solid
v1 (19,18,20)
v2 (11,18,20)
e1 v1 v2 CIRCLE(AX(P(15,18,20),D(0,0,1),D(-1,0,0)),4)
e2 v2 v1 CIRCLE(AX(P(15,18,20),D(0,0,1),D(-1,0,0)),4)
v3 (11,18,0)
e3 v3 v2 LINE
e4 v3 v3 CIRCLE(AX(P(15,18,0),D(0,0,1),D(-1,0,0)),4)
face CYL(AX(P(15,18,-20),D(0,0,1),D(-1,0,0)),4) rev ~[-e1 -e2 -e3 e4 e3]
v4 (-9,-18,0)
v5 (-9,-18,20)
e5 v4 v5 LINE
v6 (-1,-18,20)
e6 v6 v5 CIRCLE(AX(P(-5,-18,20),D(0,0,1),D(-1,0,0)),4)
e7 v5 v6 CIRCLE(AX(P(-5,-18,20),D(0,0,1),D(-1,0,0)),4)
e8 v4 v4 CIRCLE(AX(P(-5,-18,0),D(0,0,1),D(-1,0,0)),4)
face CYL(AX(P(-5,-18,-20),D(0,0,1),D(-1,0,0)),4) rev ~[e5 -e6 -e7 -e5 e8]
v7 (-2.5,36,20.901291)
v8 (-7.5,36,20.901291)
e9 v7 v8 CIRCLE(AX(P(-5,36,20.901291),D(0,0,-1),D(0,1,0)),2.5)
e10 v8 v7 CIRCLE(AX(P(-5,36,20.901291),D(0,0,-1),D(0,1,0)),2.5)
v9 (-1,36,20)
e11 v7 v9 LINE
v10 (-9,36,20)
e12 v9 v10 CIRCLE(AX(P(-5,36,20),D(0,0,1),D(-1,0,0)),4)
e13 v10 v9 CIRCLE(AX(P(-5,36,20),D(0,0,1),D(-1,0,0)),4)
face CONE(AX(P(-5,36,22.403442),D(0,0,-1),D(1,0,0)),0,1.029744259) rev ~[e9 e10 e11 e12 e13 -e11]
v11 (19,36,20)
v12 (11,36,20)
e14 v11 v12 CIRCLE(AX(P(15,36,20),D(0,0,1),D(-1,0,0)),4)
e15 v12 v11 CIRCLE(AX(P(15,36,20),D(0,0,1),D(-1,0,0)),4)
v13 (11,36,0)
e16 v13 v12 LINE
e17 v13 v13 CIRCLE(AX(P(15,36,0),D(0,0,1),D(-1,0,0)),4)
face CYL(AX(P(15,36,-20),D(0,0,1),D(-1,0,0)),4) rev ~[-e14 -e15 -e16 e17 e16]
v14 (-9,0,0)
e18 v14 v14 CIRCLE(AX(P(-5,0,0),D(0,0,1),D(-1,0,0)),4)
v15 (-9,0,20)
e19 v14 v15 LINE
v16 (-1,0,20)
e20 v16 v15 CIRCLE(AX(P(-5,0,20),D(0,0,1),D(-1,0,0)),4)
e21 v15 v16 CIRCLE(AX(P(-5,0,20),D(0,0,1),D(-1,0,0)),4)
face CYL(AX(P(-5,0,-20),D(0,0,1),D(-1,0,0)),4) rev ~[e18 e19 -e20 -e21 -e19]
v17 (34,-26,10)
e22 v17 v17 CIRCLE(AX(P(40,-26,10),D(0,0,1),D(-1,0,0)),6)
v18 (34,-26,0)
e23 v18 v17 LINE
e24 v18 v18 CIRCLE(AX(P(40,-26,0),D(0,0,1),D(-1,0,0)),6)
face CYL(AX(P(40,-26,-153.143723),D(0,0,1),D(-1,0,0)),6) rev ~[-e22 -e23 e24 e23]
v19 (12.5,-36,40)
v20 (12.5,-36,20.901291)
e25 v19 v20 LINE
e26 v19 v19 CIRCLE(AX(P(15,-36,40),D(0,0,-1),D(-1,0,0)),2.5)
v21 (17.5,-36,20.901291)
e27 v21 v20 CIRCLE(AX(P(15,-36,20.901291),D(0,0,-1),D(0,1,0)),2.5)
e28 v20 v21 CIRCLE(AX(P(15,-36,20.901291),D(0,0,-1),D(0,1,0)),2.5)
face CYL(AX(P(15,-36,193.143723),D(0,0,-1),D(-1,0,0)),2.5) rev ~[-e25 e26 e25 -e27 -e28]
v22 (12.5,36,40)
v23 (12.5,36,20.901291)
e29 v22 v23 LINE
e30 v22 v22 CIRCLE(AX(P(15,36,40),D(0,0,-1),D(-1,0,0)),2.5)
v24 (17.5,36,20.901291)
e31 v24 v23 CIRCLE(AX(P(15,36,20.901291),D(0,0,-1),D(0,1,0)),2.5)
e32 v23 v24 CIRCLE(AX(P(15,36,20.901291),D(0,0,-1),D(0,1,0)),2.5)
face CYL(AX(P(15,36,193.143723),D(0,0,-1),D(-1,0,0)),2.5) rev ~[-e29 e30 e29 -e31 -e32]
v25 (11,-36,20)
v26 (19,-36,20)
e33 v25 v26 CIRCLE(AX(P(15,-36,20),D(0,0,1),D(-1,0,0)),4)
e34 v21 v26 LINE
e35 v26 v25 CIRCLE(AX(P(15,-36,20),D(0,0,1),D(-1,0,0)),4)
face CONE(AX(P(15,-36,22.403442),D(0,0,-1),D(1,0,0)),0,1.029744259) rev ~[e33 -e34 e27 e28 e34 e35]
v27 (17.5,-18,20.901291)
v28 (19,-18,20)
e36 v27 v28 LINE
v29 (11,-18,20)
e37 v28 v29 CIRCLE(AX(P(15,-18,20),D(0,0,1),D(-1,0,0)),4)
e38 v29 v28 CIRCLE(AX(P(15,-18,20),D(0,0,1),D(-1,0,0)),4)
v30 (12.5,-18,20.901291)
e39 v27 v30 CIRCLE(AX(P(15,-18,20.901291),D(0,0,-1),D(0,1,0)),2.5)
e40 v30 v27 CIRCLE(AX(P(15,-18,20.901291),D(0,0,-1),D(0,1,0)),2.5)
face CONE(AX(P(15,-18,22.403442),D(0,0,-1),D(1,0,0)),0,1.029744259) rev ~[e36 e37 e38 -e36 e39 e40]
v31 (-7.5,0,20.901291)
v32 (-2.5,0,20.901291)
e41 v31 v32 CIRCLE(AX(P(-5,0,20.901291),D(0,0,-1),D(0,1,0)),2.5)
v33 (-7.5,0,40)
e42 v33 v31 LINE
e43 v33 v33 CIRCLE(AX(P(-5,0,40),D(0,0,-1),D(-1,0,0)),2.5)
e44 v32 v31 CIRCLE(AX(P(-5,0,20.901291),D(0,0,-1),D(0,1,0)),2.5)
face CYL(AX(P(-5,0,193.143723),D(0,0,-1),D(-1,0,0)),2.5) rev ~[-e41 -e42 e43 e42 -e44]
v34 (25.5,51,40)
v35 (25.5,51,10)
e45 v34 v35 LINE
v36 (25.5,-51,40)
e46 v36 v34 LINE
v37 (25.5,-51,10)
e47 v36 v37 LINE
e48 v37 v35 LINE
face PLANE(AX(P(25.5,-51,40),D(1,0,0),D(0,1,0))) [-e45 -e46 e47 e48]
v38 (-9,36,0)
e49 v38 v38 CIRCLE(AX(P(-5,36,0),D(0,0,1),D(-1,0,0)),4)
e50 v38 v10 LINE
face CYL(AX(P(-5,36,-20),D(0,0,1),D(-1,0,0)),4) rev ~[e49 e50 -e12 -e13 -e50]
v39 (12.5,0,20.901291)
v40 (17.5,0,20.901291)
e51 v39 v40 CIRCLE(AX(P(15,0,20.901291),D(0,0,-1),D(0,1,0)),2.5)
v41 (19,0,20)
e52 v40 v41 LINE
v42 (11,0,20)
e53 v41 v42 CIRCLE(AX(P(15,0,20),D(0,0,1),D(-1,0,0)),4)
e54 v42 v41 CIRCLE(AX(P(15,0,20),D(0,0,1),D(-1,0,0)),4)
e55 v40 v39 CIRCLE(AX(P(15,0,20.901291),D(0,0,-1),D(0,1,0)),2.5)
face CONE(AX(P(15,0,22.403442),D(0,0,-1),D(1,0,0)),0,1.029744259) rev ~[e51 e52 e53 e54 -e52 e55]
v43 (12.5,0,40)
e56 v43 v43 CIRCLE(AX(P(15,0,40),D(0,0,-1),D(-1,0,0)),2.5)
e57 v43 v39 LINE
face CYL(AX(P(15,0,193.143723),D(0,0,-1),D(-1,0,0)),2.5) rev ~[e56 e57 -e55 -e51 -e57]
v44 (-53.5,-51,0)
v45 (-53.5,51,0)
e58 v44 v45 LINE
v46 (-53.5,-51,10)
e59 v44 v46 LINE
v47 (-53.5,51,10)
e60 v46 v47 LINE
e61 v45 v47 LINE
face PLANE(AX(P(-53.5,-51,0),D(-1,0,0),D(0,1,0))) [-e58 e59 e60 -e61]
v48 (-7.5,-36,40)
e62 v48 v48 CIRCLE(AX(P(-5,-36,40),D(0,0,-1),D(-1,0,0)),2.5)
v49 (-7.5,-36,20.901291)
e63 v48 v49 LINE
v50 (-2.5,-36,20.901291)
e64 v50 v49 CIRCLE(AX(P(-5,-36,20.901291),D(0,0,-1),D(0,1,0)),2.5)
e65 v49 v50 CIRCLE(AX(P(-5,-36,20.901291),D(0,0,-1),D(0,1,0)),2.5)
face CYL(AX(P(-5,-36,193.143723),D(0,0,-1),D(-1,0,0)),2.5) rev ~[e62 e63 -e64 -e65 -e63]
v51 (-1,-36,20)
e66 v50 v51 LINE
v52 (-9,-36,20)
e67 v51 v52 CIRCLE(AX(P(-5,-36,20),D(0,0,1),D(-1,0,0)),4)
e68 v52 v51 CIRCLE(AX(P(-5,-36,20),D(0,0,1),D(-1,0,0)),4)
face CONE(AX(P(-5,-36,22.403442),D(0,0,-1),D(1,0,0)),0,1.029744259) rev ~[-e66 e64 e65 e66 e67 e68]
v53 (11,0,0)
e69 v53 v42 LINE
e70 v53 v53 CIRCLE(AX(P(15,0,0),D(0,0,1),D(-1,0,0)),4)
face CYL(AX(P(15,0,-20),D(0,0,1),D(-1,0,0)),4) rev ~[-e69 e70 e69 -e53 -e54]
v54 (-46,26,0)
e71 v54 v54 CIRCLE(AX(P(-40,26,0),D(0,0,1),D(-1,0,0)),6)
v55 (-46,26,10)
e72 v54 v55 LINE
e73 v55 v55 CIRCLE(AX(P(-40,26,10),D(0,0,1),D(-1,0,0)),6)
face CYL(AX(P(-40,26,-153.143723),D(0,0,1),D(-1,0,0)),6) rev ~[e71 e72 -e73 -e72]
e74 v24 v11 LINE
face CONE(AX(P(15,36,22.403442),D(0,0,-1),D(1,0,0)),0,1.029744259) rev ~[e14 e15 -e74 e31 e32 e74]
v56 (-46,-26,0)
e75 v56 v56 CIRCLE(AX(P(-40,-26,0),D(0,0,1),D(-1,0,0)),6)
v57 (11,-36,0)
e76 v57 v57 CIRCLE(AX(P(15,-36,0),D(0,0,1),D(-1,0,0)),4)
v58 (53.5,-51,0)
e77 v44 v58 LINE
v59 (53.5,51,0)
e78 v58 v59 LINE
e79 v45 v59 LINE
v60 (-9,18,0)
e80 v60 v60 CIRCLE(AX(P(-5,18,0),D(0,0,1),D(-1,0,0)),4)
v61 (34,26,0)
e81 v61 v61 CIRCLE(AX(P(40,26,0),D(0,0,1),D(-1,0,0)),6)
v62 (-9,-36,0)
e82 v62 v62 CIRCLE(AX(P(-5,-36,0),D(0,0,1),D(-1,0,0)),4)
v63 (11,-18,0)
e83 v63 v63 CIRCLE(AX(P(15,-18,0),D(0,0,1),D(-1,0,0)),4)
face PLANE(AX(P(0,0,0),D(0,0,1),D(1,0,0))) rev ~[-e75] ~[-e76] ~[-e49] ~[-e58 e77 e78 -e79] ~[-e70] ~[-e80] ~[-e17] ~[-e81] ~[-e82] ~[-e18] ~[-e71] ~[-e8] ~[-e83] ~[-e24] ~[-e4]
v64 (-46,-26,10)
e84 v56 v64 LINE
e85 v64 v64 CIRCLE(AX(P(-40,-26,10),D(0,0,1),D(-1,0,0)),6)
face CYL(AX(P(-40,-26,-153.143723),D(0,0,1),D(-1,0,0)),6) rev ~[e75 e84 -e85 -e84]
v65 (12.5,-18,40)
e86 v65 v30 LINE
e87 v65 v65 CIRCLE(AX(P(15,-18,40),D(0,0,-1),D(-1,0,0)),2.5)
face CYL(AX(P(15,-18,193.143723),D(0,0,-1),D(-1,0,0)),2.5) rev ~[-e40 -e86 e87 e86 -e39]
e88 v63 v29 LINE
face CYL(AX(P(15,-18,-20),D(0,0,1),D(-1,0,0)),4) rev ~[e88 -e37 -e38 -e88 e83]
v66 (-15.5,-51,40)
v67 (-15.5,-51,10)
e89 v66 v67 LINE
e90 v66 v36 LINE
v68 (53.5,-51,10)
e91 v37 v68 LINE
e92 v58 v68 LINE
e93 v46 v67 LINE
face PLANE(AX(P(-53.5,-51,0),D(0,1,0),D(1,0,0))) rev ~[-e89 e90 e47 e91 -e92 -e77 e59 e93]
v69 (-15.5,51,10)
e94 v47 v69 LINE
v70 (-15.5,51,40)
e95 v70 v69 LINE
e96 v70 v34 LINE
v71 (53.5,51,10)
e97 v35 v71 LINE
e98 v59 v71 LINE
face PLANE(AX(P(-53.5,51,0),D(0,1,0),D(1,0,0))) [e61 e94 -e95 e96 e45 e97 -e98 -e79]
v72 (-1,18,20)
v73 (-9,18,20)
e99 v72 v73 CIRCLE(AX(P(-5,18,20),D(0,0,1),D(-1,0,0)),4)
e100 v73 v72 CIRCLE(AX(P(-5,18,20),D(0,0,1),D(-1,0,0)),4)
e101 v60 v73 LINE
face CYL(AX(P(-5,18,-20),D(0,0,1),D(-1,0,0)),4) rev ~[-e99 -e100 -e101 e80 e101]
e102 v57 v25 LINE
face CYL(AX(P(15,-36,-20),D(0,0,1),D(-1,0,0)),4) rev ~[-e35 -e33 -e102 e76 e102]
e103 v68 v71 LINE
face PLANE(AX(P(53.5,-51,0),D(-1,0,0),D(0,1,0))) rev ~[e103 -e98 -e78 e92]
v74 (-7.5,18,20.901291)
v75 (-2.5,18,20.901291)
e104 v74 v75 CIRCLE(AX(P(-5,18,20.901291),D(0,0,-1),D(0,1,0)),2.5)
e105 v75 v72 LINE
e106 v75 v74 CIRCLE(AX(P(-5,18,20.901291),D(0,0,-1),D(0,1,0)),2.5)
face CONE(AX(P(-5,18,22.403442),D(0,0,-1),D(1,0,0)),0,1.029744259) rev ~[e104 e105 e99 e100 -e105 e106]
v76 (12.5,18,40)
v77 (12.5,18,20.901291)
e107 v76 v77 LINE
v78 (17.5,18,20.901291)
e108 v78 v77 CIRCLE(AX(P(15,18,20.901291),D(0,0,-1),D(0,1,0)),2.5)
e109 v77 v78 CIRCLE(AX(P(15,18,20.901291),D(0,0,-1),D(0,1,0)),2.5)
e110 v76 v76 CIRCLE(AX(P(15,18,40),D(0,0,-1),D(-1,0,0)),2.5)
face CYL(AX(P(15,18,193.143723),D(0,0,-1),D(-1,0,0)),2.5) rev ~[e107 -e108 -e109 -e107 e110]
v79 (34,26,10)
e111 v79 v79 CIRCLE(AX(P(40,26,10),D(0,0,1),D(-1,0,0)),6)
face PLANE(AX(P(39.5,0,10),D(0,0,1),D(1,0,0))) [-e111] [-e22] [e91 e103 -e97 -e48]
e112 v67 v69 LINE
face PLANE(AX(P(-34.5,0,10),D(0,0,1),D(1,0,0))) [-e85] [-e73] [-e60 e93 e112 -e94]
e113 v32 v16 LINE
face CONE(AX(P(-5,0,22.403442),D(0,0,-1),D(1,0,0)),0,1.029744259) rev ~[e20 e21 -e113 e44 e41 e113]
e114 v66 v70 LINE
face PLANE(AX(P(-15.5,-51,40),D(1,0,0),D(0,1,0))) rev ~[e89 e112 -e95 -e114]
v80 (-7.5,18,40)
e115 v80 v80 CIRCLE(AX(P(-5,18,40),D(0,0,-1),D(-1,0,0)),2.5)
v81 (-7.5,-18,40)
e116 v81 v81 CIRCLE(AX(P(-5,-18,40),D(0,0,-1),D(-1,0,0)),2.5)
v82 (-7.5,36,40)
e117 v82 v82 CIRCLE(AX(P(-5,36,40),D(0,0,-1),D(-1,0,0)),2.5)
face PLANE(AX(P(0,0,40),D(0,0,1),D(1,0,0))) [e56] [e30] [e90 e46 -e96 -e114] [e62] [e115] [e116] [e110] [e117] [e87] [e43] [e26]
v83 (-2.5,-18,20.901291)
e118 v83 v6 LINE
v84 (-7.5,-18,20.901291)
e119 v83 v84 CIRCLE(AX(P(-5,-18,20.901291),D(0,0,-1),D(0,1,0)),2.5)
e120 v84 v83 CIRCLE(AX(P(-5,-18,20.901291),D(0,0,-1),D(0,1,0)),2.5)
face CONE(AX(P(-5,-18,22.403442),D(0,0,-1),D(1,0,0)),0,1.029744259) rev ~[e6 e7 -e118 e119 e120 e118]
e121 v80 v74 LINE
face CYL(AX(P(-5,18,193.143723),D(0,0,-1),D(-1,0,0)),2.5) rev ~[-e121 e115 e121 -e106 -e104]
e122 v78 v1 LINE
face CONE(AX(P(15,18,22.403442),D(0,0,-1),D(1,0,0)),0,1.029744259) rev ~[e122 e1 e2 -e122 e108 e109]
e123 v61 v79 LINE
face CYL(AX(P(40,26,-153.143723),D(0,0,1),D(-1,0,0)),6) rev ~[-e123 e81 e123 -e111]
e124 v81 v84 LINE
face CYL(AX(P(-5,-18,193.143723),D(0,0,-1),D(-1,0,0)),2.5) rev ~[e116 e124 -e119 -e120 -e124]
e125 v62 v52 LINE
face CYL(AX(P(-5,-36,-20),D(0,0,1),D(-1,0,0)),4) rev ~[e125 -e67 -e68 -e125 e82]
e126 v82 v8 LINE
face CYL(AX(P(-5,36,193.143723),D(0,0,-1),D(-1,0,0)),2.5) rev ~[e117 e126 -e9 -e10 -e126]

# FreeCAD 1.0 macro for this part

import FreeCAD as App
import Part
import Sketcher

V = App.Vector

doc = App.newDocument("Part")
body = doc.addObject("PartDesign::Body", "Body")

# Sketch on XY plane
sketch1 = body.newObject("Sketcher::SketchObject", "Sketch")
sketch1.AttachmentSupport = (doc.getObject("XY_Plane"), [""])
sketch1.MapMode = "FlatFace"
sketch1.addGeometry([
    Part.LineSegment(V(-53.5, 51, 0), V(-53.5, -51, 0)),
    Part.LineSegment(V(-53.5, -51, 0), V(53.5, -51, 0)),
    Part.LineSegment(V(53.5, -51, 0), V(53.5, 51, 0)),
    Part.LineSegment(V(53.5, 51, 0), V(-53.5, 51, 0)),
], False)
sketch1.addConstraint([
    Sketcher.Constraint("Coincident", 0, 2, 1, 1),
    Sketcher.Constraint("Coincident", 1, 2, 2, 1),
    Sketcher.Constraint("Coincident", 2, 2, 3, 1),
    Sketcher.Constraint("Coincident", 3, 2, 0, 1),
    Sketcher.Constraint("Vertical", 0),
    Sketcher.Constraint("Horizontal", 1),
    Sketcher.Constraint("Vertical", 2),
    Sketcher.Constraint("Horizontal", 3),
    Sketcher.Constraint("Symmetric", 0, 2, 2, 2, -1, 1),
    Sketcher.Constraint("DistanceX", 1, 1, 1, 2, 107.0),
    Sketcher.Constraint("DistanceY", 0, 2, 0, 1, 102.0),
])
pad1 = body.newObject("PartDesign::Pad", "Pad")
pad1.Profile = sketch1
pad1.Length = 40

# Sketch on XY plane
sketch2 = body.newObject("Sketcher::SketchObject", "Sketch001")
sketch2.AttachmentSupport = (doc.getObject("XY_Plane"), [""])
sketch2.MapMode = "FlatFace"
sketch2.AttachmentOffset = App.Placement(V(0, 0, 40), App.Rotation())
sketch2.addGeometry([
    Part.LineSegment(V(-53.5, 51, 0), V(-53.5, -51, 0)),  # 0
    Part.LineSegment(V(-53.5, -51, 0), V(-15.5, -51, 0)),  # 1
    Part.LineSegment(V(-15.5, -51, 0), V(-15.5, 51, 0)),  # 2
    Part.LineSegment(V(-15.5, 51, 0), V(-53.5, 51, 0)),  # 3
    Part.LineSegment(V(25.5, 51, 0), V(25.5, -51, 0)),  # 4
    Part.LineSegment(V(25.5, -51, 0), V(53.5, -51, 0)),  # 5
    Part.LineSegment(V(53.5, -51, 0), V(53.5, 51, 0)),  # 6
    Part.LineSegment(V(53.5, 51, 0), V(25.5, 51, 0)),  # 7
], False)
sketch2.addConstraint([
    Sketcher.Constraint("Coincident", 0, 2, 1, 1),
    Sketcher.Constraint("Coincident", 1, 2, 2, 1),
    Sketcher.Constraint("Coincident", 2, 2, 3, 1),
    Sketcher.Constraint("Coincident", 3, 2, 0, 1),
    Sketcher.Constraint("Coincident", 4, 2, 5, 1),
    Sketcher.Constraint("Coincident", 5, 2, 6, 1),
    Sketcher.Constraint("Coincident", 6, 2, 7, 1),
    Sketcher.Constraint("Coincident", 7, 2, 4, 1),
    Sketcher.Constraint("Vertical", 0),
    Sketcher.Constraint("Horizontal", 1),
    Sketcher.Constraint("Vertical", 2),
    Sketcher.Constraint("Horizontal", 3),
    Sketcher.Constraint("Vertical", 4),
    Sketcher.Constraint("Horizontal", 5),
    Sketcher.Constraint("Vertical", 6),
    Sketcher.Constraint("Horizontal", 7),
    Sketcher.Constraint("Symmetric", 3, 2, 5, 2, -1, 1),
    Sketcher.Constraint("Horizontal", 1, 2, 4, 2),
    Sketcher.Constraint("Horizontal", 3, 2, 6, 2),
    Sketcher.Constraint("DistanceX", 1, 1, 1, 2, 38.0),
    Sketcher.Constraint("DistanceX", 5, 1, 5, 2, 28.0),
    Sketcher.Constraint("DistanceY", 0, 2, 0, 1, 102.0),
    Sketcher.Constraint("DistanceX", 1, 2, 4, 2, 41.0),
])
pocket1 = body.newObject("PartDesign::Pocket", "Pocket")
pocket1.Profile = sketch2
pocket1.Length = 30

# Sketch on XY plane
sketch3 = body.newObject("Sketcher::SketchObject", "Sketch002")
sketch3.AttachmentSupport = (doc.getObject("XY_Plane"), [""])
sketch3.MapMode = "FlatFace"
sketch3.addGeometry([
    Part.Circle(V(-5, 18, 0), V(0, 0, 1), 4),  # 0
    Part.Circle(V(-5, 36, 0), V(0, 0, 1), 4),  # 1
    Part.Circle(V(15, 36, 0), V(0, 0, 1), 4),  # 2
    Part.Circle(V(15, 18, 0), V(0, 0, 1), 4),  # 3
    Part.Circle(V(-5, 0, 0), V(0, 0, 1), 4),  # 4
    Part.Circle(V(15, 0, 0), V(0, 0, 1), 4),  # 5
    Part.Circle(V(15, -18, 0), V(0, 0, 1), 4),  # 6
    Part.Circle(V(-5, -18, 0), V(0, 0, 1), 4),  # 7
    Part.Circle(V(-5, -36, 0), V(0, 0, 1), 4),  # 8
    Part.Circle(V(15, -36, 0), V(0, 0, 1), 4),  # 9
], False)
sketch3.addConstraint([
    Sketcher.Constraint("Equal", 0, 1),
    Sketcher.Constraint("Equal", 1, 2),
    Sketcher.Constraint("Equal", 2, 3),
    Sketcher.Constraint("Equal", 3, 4),
    Sketcher.Constraint("Equal", 4, 5),
    Sketcher.Constraint("Equal", 5, 6),
    Sketcher.Constraint("Equal", 6, 7),
    Sketcher.Constraint("Equal", 7, 8),
    Sketcher.Constraint("Equal", 8, 9),
    Sketcher.Constraint("Symmetric", 3, 3, 6, 3, -1),
    Sketcher.Constraint("Symmetric", 0, 3, 7, 3, -1),
    Sketcher.Constraint("Symmetric", 1, 3, 8, 3, -1),
    Sketcher.Constraint("Symmetric", 2, 3, 9, 3, -1),
    Sketcher.Constraint("PointOnObject", 4, 3, -1),
    Sketcher.Constraint("PointOnObject", 5, 3, -1),
    Sketcher.Constraint("Horizontal", 1, 3, 2, 3),
    Sketcher.Constraint("Horizontal", 0, 3, 3, 3),
    Sketcher.Constraint("Vertical", 0, 3, 1, 3),
    Sketcher.Constraint("Vertical", 2, 3, 3, 3),
    Sketcher.Constraint("Vertical", 1, 3, 4, 3),
    Sketcher.Constraint("Vertical", 3, 3, 5, 3),
    Sketcher.Constraint("Diameter", 0, 8.0),
    Sketcher.Constraint("DistanceX", 0, 3, -1, 1, 5.0),
    Sketcher.Constraint("DistanceY", -1, 1, 0, 3, 18.0),
    Sketcher.Constraint("DistanceY", -1, 1, 1, 3, 36.0),
    Sketcher.Constraint("DistanceX", -1, 1, 2, 3, 15.0),
])
doc.recompute()
hole = body.newObject("PartDesign::Hole", "Hole")
hole.Profile = sketch3
hole.ThreadType = "None"
hole.Diameter = 8
hole.DepthType = "Dimension"
hole.Depth = 20
hole.DrillPoint = "Angled"
hole.DrillPointAngle = 118
hole.Reversed = True

# Sketch on XY plane
sketch4 = body.newObject("Sketcher::SketchObject", "Sketch003")
sketch4.AttachmentSupport = (doc.getObject("XY_Plane"), [""])
sketch4.MapMode = "FlatFace"
sketch4.AttachmentOffset = App.Placement(V(0, 0, 40), App.Rotation())
sketch4.addGeometry([
    Part.Circle(V(-5, -36, 0), V(0, 0, 1), 2.5),  # 0
    Part.Circle(V(15, -36, 0), V(0, 0, 1), 2.5),  # 1
    Part.Circle(V(-5, -18, 0), V(0, 0, 1), 2.5),  # 2
    Part.Circle(V(15, -18, 0), V(0, 0, 1), 2.5),  # 3
    Part.Circle(V(-5, 0, 0), V(0, 0, 1), 2.5),  # 4
    Part.Circle(V(15, 0, 0), V(0, 0, 1), 2.5),  # 5
    Part.Circle(V(-5, 18, 0), V(0, 0, 1), 2.5),  # 6
    Part.Circle(V(15, 18, 0), V(0, 0, 1), 2.5),  # 7
    Part.Circle(V(-5, 36, 0), V(0, 0, 1), 2.5),  # 8
    Part.Circle(V(15, 36, 0), V(0, 0, 1), 2.5),  # 9
], False)
sketch4.addConstraint([
    Sketcher.Constraint("Equal", 0, 1),
    Sketcher.Constraint("Equal", 1, 2),
    Sketcher.Constraint("Equal", 2, 3),
    Sketcher.Constraint("Equal", 3, 4),
    Sketcher.Constraint("Equal", 4, 5),
    Sketcher.Constraint("Equal", 5, 6),
    Sketcher.Constraint("Equal", 6, 7),
    Sketcher.Constraint("Equal", 7, 8),
    Sketcher.Constraint("Equal", 8, 9),
    Sketcher.Constraint("Symmetric", 2, 3, 6, 3, -1),
    Sketcher.Constraint("Symmetric", 3, 3, 7, 3, -1),
    Sketcher.Constraint("Symmetric", 0, 3, 8, 3, -1),
    Sketcher.Constraint("Symmetric", 1, 3, 9, 3, -1),
    Sketcher.Constraint("PointOnObject", 4, 3, -1),
    Sketcher.Constraint("PointOnObject", 5, 3, -1),
    Sketcher.Constraint("Horizontal", 0, 3, 1, 3),
    Sketcher.Constraint("Horizontal", 2, 3, 3, 3),
    Sketcher.Constraint("Vertical", 0, 3, 2, 3),
    Sketcher.Constraint("Vertical", 1, 3, 3, 3),
    Sketcher.Constraint("Vertical", 2, 3, 4, 3),
    Sketcher.Constraint("Vertical", 3, 3, 5, 3),
    Sketcher.Constraint("Diameter", 0, 5.0),
    Sketcher.Constraint("DistanceX", 0, 3, -1, 1, 5.0),
    Sketcher.Constraint("DistanceY", 0, 3, -1, 1, 36.0),
    Sketcher.Constraint("DistanceX", -1, 1, 1, 3, 15.0),
    Sketcher.Constraint("DistanceY", 2, 3, -1, 1, 18.0),
])
doc.recompute()
hole2 = body.newObject("PartDesign::Hole", "Hole001")
hole2.Profile = sketch4
hole2.ThreadType = "None"
hole2.Diameter = 5
hole2.DepthType = "ThroughAll"

# Sketch on XY plane
sketch5 = body.newObject("Sketcher::SketchObject", "Sketch004")
sketch5.AttachmentSupport = (doc.getObject("XY_Plane"), [""])
sketch5.MapMode = "FlatFace"
sketch5.addGeometry([
    Part.Circle(V(-40, -26, 0), V(0, 0, 1), 6),
    Part.Circle(V(-40, 26, 0), V(0, 0, 1), 6),
    Part.Circle(V(40, 26, 0), V(0, 0, 1), 6),
    Part.Circle(V(40, -26, 0), V(0, 0, 1), 6),
], False)
sketch5.addConstraint([
    Sketcher.Constraint("Equal", 0, 1),
    Sketcher.Constraint("Equal", 1, 2),
    Sketcher.Constraint("Equal", 2, 3),
    Sketcher.Constraint("Symmetric", 0, 3, 2, 3, -1, 1),
    Sketcher.Constraint("Symmetric", 1, 3, 3, 3, -1, 1),
    Sketcher.Constraint("Symmetric", 1, 3, 2, 3, -2),
    Sketcher.Constraint("Diameter", 0, 12.0),
    Sketcher.Constraint("DistanceX", 0, 3, -1, 1, 40.0),
    Sketcher.Constraint("DistanceY", 0, 3, -1, 1, 26.0),
])
doc.recompute()
hole3 = body.newObject("PartDesign::Hole", "Hole002")
hole3.Profile = sketch5
hole3.ThreadType = "None"
hole3.Diameter = 12
hole3.DepthType = "ThroughAll"
hole3.Reversed = True

doc.recompute()
